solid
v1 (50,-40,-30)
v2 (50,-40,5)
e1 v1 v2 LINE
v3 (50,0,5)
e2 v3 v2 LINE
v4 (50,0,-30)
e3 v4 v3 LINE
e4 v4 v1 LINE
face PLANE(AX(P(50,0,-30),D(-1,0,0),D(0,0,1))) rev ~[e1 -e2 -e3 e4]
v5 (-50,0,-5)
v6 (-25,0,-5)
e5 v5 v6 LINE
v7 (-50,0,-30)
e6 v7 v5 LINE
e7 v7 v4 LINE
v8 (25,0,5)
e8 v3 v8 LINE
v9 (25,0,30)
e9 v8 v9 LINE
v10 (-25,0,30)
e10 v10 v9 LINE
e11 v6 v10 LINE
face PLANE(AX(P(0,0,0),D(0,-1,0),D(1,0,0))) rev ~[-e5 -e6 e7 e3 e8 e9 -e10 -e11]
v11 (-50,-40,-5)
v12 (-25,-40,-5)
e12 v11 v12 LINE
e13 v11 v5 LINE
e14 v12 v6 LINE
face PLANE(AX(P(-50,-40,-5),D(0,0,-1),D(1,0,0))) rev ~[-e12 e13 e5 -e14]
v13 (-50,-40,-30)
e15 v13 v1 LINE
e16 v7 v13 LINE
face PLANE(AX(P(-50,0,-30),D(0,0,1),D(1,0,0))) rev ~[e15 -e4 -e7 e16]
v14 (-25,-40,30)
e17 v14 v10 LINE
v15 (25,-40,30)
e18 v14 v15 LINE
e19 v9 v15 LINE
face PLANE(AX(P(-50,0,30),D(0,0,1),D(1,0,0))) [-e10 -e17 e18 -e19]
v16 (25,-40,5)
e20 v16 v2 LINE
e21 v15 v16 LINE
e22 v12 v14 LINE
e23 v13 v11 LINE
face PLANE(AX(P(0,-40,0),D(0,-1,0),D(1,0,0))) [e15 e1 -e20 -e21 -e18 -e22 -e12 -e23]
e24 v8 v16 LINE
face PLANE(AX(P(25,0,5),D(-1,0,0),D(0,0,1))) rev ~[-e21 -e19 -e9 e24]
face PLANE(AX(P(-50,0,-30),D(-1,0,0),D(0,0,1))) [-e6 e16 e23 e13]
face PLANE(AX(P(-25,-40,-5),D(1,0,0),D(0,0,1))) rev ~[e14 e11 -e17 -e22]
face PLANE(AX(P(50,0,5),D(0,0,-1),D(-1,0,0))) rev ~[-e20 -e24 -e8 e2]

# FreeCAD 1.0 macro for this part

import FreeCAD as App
import Part
import Sketcher

doc = App.newDocument("Part")
body = doc.addObject("PartDesign::Body", "Body")

# Sketch on XZ plane
sketch1 = body.newObject("Sketcher::SketchObject", "Sketch")
sketch1.AttachmentSupport = (doc.getObject("XZ_Plane"), [""])
sketch1.MapMode = "FlatFace"
sketch1.addGeometry([
    Part.LineSegment(App.Vector(-50, 30, 0), App.Vector(-50, -30, 0)),
    Part.LineSegment(App.Vector(-50, -30, 0), App.Vector(50, -30, 0)),
    Part.LineSegment(App.Vector(50, -30, 0), App.Vector(50, 30, 0)),
    Part.LineSegment(App.Vector(50, 30, 0), App.Vector(-50, 30, 0)),
], False)
sketch1.addConstraint([
    Sketcher.Constraint("Coincident", 0, 2, 1, 1),
    Sketcher.Constraint("Coincident", 1, 2, 2, 1),
    Sketcher.Constraint("Coincident", 2, 2, 3, 1),
    Sketcher.Constraint("Coincident", 3, 2, 0, 1),
    Sketcher.Constraint("Vertical", 0),
    Sketcher.Constraint("Horizontal", 1),
    Sketcher.Constraint("Vertical", 2),
    Sketcher.Constraint("Horizontal", 3),
    Sketcher.Constraint("Symmetric", 0, 2, 2, 2, -1, 1),
    Sketcher.Constraint("DistanceX", 1, 1, 1, 2, 100.0),
    Sketcher.Constraint("DistanceY", 0, 2, 0, 1, 60.0),
])
pad1 = body.newObject("PartDesign::Pad", "Pad")
pad1.Profile = sketch1
pad1.Length = 40

# Sketch on XZ plane
sketch2 = body.newObject("Sketcher::SketchObject", "Sketch001")
sketch2.AttachmentSupport = (doc.getObject("XZ_Plane"), [""])
sketch2.MapMode = "FlatFace"
sketch2.AttachmentOffset = App.Placement(App.Vector(0, 0, 40), App.Rotation())
sketch2.addGeometry([
    Part.LineSegment(App.Vector(-50, 30, 0), App.Vector(-50, -5, 0)),
    Part.LineSegment(App.Vector(-50, -5, 0), App.Vector(-25, -5, 0)),
    Part.LineSegment(App.Vector(-25, -5, 0), App.Vector(-25, 30, 0)),
    Part.LineSegment(App.Vector(-25, 30, 0), App.Vector(-50, 30, 0)),
], False)
sketch2.addConstraint([
    Sketcher.Constraint("Coincident", 0, 2, 1, 1),
    Sketcher.Constraint("Coincident", 1, 2, 2, 1),
    Sketcher.Constraint("Coincident", 2, 2, 3, 1),
    Sketcher.Constraint("Coincident", 3, 2, 0, 1),
    Sketcher.Constraint("Vertical", 0),
    Sketcher.Constraint("Horizontal", 1),
    Sketcher.Constraint("Vertical", 2),
    Sketcher.Constraint("Horizontal", 3),
    Sketcher.Constraint("DistanceX", 1, 1, 1, 2, 25.0),
    Sketcher.Constraint("DistanceY", 0, 2, 0, 1, 35.0),
    Sketcher.Constraint("DistanceX", 0, 2, -1, 1, 50.0),
    Sketcher.Constraint("DistanceY", 0, 2, -1, 1, 5.0),
])
pocket1 = body.newObject("PartDesign::Pocket", "Pocket")
pocket1.Profile = sketch2
pocket1.Type = "ThroughAll"

# Sketch on XZ plane
sketch3 = body.newObject("Sketcher::SketchObject", "Sketch002")
sketch3.AttachmentSupport = (doc.getObject("XZ_Plane"), [""])
sketch3.MapMode = "FlatFace"
sketch3.addGeometry([
    Part.LineSegment(App.Vector(50, 30, 0), App.Vector(50, 5, 0)),
    Part.LineSegment(App.Vector(50, 5, 0), App.Vector(25, 5, 0)),
    Part.LineSegment(App.Vector(25, 5, 0), App.Vector(25, 30, 0)),
    Part.LineSegment(App.Vector(25, 30, 0), App.Vector(50, 30, 0)),
], False)
sketch3.addConstraint([
    Sketcher.Constraint("Coincident", 0, 2, 1, 1),
    Sketcher.Constraint("Coincident", 1, 2, 2, 1),
    Sketcher.Constraint("Coincident", 2, 2, 3, 1),
    Sketcher.Constraint("Coincident", 3, 2, 0, 1),
    Sketcher.Constraint("Vertical", 0),
    Sketcher.Constraint("Horizontal", 1),
    Sketcher.Constraint("Vertical", 2),
    Sketcher.Constraint("Horizontal", 3),
    Sketcher.Constraint("Equal", 3, 0),
    Sketcher.Constraint("DistanceX", 1, 2, 1, 1, 25.0),
    Sketcher.Constraint("DistanceX", -1, 1, 0, 2, 50.0),
    Sketcher.Constraint("DistanceY", -1, 1, 0, 2, 5.0),
])
pocket2 = body.newObject("PartDesign::Pocket", "Pocket001")
pocket2.Profile = sketch3
pocket2.Type = "ThroughAll"
pocket2.Reversed = True

doc.recompute()
